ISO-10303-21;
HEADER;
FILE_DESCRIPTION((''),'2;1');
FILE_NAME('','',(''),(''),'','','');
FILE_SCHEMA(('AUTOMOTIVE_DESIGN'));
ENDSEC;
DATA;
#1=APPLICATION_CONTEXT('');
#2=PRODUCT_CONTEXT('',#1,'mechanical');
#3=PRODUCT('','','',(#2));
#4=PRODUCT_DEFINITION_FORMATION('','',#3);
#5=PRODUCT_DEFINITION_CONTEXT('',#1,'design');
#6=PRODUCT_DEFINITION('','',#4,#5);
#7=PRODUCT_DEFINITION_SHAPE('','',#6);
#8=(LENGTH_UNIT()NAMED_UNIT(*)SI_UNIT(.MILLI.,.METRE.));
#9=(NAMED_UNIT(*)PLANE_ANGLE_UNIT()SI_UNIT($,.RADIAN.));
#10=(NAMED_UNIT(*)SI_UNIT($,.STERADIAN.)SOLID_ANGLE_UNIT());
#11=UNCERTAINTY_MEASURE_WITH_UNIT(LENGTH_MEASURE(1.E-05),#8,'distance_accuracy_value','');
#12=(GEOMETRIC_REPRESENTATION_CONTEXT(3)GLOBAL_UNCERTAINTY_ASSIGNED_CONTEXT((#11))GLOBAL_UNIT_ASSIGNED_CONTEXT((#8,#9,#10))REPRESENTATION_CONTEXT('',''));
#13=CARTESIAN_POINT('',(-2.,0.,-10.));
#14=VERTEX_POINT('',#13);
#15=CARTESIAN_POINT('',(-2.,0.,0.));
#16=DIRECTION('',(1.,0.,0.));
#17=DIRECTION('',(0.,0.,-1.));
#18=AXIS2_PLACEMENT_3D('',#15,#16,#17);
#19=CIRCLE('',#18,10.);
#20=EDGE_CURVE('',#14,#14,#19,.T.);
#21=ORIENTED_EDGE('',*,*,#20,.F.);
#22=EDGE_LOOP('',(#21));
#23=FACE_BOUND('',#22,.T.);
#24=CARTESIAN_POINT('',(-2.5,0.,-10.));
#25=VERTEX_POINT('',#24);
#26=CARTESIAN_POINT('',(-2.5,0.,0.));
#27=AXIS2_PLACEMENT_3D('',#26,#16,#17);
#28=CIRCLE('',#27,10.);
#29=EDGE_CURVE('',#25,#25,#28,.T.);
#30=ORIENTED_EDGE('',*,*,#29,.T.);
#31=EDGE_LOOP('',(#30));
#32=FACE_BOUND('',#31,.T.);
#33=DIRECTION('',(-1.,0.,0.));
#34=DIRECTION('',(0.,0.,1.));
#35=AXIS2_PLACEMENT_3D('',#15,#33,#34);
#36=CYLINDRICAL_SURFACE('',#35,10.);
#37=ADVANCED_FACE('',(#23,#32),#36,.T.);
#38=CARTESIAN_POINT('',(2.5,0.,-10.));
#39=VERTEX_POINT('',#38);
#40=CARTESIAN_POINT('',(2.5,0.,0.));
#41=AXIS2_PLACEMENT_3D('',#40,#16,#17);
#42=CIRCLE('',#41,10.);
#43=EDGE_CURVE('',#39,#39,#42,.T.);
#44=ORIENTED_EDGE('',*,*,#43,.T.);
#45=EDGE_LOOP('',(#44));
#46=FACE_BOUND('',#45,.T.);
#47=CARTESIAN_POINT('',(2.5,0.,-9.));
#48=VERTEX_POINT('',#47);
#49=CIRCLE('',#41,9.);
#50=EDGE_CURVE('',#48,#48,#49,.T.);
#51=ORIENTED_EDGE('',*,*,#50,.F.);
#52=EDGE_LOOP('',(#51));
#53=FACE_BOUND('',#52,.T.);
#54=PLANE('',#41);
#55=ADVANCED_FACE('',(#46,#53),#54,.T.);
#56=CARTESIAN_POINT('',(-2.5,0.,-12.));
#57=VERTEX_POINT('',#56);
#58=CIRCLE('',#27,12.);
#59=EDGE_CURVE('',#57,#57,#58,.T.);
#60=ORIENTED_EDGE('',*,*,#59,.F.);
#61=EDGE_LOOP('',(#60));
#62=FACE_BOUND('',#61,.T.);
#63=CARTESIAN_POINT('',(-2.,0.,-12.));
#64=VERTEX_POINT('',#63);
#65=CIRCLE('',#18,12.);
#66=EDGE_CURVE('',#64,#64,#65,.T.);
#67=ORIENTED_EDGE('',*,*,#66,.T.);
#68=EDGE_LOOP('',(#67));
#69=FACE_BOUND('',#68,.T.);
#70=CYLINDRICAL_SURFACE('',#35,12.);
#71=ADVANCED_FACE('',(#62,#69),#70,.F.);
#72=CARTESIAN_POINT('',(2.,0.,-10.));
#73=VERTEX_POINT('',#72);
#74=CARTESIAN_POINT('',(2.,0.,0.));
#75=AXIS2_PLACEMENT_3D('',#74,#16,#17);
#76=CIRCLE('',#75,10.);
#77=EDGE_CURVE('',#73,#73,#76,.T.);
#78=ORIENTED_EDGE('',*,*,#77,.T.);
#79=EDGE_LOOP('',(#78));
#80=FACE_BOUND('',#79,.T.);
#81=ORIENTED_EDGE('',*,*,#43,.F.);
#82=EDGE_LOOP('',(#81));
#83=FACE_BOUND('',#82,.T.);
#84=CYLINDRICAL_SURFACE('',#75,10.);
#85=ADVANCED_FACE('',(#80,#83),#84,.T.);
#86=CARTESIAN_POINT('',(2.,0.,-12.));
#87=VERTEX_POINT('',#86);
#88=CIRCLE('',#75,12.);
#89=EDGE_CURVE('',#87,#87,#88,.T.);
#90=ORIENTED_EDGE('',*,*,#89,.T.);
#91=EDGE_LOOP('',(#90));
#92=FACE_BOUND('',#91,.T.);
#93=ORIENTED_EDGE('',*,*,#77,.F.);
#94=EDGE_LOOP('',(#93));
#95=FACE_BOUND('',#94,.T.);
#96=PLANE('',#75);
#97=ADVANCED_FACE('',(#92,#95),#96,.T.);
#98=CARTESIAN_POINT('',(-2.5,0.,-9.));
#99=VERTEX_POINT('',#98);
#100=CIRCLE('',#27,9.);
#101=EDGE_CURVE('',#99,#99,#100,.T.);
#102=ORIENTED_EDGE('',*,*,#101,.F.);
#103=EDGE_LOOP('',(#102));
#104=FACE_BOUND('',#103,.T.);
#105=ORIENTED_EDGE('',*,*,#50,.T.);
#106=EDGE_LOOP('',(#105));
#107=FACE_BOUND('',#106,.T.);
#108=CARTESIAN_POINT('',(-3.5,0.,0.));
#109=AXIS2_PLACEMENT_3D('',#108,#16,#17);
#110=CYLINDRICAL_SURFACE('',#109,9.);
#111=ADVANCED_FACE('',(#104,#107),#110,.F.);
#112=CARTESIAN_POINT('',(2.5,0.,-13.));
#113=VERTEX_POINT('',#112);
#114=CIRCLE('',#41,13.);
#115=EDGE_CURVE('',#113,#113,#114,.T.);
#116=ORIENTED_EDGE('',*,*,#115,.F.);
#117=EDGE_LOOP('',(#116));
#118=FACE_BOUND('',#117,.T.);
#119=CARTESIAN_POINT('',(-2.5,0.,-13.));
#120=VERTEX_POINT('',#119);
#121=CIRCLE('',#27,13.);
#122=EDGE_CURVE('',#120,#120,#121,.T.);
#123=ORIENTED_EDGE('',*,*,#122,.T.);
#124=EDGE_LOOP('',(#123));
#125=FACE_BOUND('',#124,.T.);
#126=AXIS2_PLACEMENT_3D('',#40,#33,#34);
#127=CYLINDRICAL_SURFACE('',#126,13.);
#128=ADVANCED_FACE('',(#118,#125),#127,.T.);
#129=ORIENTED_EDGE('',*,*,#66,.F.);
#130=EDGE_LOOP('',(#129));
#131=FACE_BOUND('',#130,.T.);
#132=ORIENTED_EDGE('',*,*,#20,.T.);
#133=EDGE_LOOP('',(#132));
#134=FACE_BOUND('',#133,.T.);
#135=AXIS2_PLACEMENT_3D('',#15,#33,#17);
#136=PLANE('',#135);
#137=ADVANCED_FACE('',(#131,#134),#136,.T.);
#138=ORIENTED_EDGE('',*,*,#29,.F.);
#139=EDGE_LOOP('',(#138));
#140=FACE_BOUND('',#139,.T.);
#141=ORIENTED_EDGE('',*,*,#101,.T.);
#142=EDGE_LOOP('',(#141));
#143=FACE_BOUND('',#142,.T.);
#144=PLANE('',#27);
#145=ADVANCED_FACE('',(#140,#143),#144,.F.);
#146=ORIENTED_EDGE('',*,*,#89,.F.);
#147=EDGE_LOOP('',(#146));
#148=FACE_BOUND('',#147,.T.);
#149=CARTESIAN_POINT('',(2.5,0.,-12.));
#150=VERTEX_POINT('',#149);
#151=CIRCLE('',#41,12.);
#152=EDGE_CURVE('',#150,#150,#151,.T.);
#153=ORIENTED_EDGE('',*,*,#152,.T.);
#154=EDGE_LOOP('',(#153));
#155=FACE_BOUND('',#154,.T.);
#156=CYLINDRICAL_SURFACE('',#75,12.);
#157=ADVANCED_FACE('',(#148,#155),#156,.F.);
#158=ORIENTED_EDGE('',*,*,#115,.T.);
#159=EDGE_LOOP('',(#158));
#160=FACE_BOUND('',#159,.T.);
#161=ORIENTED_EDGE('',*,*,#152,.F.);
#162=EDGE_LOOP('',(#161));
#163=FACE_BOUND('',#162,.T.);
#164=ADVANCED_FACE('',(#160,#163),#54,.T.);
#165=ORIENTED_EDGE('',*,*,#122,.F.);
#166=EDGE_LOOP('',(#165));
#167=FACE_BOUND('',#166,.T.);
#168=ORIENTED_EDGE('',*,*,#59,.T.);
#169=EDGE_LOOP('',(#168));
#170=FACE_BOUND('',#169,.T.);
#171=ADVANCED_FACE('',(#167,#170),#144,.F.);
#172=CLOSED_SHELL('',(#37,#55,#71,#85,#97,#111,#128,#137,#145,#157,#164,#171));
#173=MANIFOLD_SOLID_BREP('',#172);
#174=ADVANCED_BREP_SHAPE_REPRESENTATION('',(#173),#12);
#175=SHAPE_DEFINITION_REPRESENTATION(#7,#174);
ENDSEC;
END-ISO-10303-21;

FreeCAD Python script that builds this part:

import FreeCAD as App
import Part
import Sketcher

V = App.Vector

doc = App.newDocument("Part")
params = doc.addObject("Spreadsheet::Sheet", "Params")
for row, (alias, value) in enumerate([
    ("sketch1_diameter", "26 mm"),
    ("pad1_length", "5 mm"),
    ("sketch2_diameter", "18 mm"),
    ("pocket1_length", "6 mm"),
    ("sketch3_diameter", "24 mm"),
    ("sketch3_diameter2", "20 mm"),
    ("pocket2_length", "0.5 mm"),
], start=1):
    params.set(f"A{row}", alias)
    params.set(f"B{row}", "=" + value)
    params.setAlias(f"B{row}", alias)

body = doc.addObject("PartDesign::Body", "Body")

# Sketch on YZ plane
sketch1 = body.newObject("Sketcher::SketchObject", "Sketch")
sketch1.AttachmentSupport = (doc.getObject("YZ_Plane"), [""])
sketch1.MapMode = "FlatFace"
sketch1.addGeometry(Part.Circle(V(0, 0, 0), V(0, 0, 1), 13), False)
sketch1.addConstraint(Sketcher.Constraint("Coincident", 0, 3, -1, 1))
sketch1.addConstraint(Sketcher.Constraint("Diameter", 0, 26.0))
sketch1.setExpression("Constraints[1]", "Params.sketch1_diameter")
pad1 = body.newObject("PartDesign::Pad", "Pad")
pad1.Profile = sketch1
pad1.setExpression("Length", "Params.pad1_length")
pad1.Midplane = True

# Sketch on YZ plane
sketch2 = body.newObject("Sketcher::SketchObject", "Sketch001")
sketch2.AttachmentSupport = (doc.getObject("YZ_Plane"), [""])
sketch2.MapMode = "FlatFace"
sketch2.AttachmentOffset = App.Placement(V(0, 0, 2.5), App.Rotation())
sketch2.addGeometry(Part.Circle(V(0, 0, 0), V(0, 0, 1), 9), False)
sketch2.addConstraint(Sketcher.Constraint("Coincident", 0, 3, -1, 1))
sketch2.addConstraint(Sketcher.Constraint("Diameter", 0, 18.0))
sketch2.setExpression("Constraints[1]", "Params.sketch2_diameter")
pocket1 = body.newObject("PartDesign::Pocket", "Pocket")
pocket1.Profile = sketch2
pocket1.setExpression("Length", "Params.pocket1_length")

# Sketch on YZ plane
sketch3 = body.newObject("Sketcher::SketchObject", "Sketch002")
sketch3.AttachmentSupport = (doc.getObject("YZ_Plane"), [""])
sketch3.MapMode = "FlatFace"
sketch3.AttachmentOffset = App.Placement(V(0, 0, 2.5), App.Rotation())
sketch3.addGeometry(Part.Circle(V(0, 0, 0), V(0, 0, 1), 12), False)
sketch3.addGeometry(Part.Circle(V(0, 0, 0), V(0, 0, 1), 10), False)
sketch3.addConstraint(Sketcher.Constraint("Coincident", 0, 3, -1, 1))
sketch3.addConstraint(Sketcher.Constraint("Coincident", 1, 3, -1, 1))
sketch3.addConstraint(Sketcher.Constraint("Diameter", 0, 24.0))
sketch3.addConstraint(Sketcher.Constraint("Diameter", 1, 20.0))
sketch3.setExpression("Constraints[2]", "Params.sketch3_diameter")
sketch3.setExpression("Constraints[3]", "Params.sketch3_diameter2")
pocket2 = body.newObject("PartDesign::Pocket", "Pocket001")
pocket2.Profile = sketch3
pocket2.setExpression("Length", "Params.pocket2_length")
doc.recompute()

mirrored = body.newObject("PartDesign::Mirrored", "Mirrored")
mirrored.Originals = [pocket2]
mirrored.MirrorPlane = (doc.getObject("YZ_Plane"), [""])
body.Tip = mirrored

doc.recompute()
